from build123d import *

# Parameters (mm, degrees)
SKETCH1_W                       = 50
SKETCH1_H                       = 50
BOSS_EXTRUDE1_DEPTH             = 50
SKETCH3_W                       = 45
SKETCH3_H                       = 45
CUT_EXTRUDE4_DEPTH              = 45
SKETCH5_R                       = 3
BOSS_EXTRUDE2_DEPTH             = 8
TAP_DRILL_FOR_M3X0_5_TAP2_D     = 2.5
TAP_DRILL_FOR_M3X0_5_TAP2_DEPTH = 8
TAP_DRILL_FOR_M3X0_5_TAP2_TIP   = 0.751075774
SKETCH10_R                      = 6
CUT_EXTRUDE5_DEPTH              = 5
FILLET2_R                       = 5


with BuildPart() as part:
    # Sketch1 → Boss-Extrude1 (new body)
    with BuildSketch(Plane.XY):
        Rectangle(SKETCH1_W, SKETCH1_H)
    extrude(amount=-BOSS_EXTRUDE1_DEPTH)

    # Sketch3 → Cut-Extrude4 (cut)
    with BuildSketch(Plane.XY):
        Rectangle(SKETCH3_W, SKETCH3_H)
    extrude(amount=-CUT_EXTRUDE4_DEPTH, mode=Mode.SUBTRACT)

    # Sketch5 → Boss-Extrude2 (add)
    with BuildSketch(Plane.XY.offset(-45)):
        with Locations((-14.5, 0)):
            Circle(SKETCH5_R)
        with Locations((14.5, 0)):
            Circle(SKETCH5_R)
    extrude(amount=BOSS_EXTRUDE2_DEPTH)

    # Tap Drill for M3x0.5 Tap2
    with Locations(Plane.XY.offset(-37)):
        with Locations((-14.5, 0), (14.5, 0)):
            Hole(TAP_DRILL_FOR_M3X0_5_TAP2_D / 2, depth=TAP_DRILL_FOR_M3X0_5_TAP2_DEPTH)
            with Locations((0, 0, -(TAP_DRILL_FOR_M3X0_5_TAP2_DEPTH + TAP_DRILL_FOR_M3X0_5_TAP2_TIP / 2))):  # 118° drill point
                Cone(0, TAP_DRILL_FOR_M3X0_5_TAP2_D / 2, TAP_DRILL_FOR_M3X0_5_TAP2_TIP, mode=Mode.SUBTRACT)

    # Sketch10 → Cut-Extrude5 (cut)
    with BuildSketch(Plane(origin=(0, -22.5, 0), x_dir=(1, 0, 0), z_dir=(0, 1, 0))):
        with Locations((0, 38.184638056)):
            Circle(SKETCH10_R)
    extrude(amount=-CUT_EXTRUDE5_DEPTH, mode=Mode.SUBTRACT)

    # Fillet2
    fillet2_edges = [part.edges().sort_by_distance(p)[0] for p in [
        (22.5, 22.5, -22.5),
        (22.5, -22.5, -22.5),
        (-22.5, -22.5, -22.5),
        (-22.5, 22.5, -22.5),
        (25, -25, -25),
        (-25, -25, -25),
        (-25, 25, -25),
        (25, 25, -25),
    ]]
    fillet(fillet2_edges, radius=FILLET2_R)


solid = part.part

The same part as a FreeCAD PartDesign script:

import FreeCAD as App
import Part
import Sketcher
from FreeCAD import Vector


def edges_at(feature, points):
    """Names of the edges that pass closest to the given points."""
    edges = feature.Shape.Edges
    near = lambda p: min(range(len(edges)), key=lambda i: edges[i].distToShape(Part.Vertex(*p))[0])
    return sorted({f"Edge{near(p) + 1}" for p in points})


def add_polygon(sketch, points):
    """Adds a closed chain of lines whose ends are joined by coincident constraints."""
    first, n = sketch.GeometryCount, len(points)
    for a, b in zip(points, points[1:] + points[:1]):
        sketch.addGeometry(Part.LineSegment(App.Vector(*a, 0), App.Vector(*b, 0)), False)
    for i in range(n):
        sketch.addConstraint(Sketcher.Constraint("Coincident", first + i, 2, first + (i + 1) % n, 1))

doc = App.newDocument("Part")
body = doc.addObject("PartDesign::Body", "Body")

# Sketch on XY plane
sketch1 = body.newObject("Sketcher::SketchObject", "Sketch")
sketch1.AttachmentSupport = (doc.getObject("XY_Plane"), [""])
sketch1.MapMode = "FlatFace"
add_polygon(sketch1, [(-25, 25), (-25, -25), (25, -25), (25, 25)])  # lines 0-3
sketch1.addConstraint(Sketcher.Constraint("Vertical", 0))
sketch1.addConstraint(Sketcher.Constraint("Horizontal", 1))
sketch1.addConstraint(Sketcher.Constraint("Vertical", 2))
sketch1.addConstraint(Sketcher.Constraint("Horizontal", 3))
sketch1.addConstraint(Sketcher.Constraint("Symmetric", 0, 2, 2, 2, -1, 1))
sketch1.addConstraint(Sketcher.Constraint("Equal", 3, 0))
sketch1.addConstraint(Sketcher.Constraint("DistanceX", 1, 1, 1, 2, 50.0))
pad1 = body.newObject("PartDesign::Pad", "Pad")
pad1.Profile = sketch1
pad1.Length = 50
pad1.Reversed = True

# Sketch on XY plane
sketch2 = body.newObject("Sketcher::SketchObject", "Sketch001")
sketch2.AttachmentSupport = (doc.getObject("XY_Plane"), [""])
sketch2.MapMode = "FlatFace"
add_polygon(sketch2, [(-22, 22), (-22, -22), (22, -22), (22, 22)])  # lines 0-3
sketch2.addConstraint(Sketcher.Constraint("Vertical", 0))
sketch2.addConstraint(Sketcher.Constraint("Horizontal", 1))
sketch2.addConstraint(Sketcher.Constraint("Vertical", 2))
sketch2.addConstraint(Sketcher.Constraint("Horizontal", 3))
sketch2.addConstraint(Sketcher.Constraint("Symmetric", 0, 2, 2, 2, -1, 1))
sketch2.addConstraint(Sketcher.Constraint("Equal", 3, 0))
sketch2.addConstraint(Sketcher.Constraint("DistanceX", 1, 1, 1, 2, 45.0))
pocket1 = body.newObject("PartDesign::Pocket", "Pocket")
pocket1.Profile = sketch2
pocket1.Length = 45

# Sketch on XY plane
sketch3 = body.newObject("Sketcher::SketchObject", "Sketch002")
sketch3.AttachmentSupport = (doc.getObject("XY_Plane"), [""])
sketch3.MapMode = "FlatFace"
sketch3.AttachmentOffset = App.Placement(Vector(0, 0, -45), App.Rotation())
sketch3.addGeometry(Part.Circle(Vector(-14.5, 0, 0), Vector(0, 0, 1), 3), False)
sketch3.addGeometry(Part.Circle(Vector(14.5, 0, 0), Vector(0, 0, 1), 3), False)
sketch3.addConstraint(Sketcher.Constraint("Equal", 0, 1))
sketch3.addConstraint(Sketcher.Constraint("Symmetric", 0, 3, 1, 3, -1, 1))
sketch3.addConstraint(Sketcher.Constraint("PointOnObject", 0, 3, -1))
sketch3.addConstraint(Sketcher.Constraint("Diameter", 0, 6.0))
sketch3.addConstraint(Sketcher.Constraint("DistanceX", 0, 3, 1, 3, 29.0))
pad2 = body.newObject("PartDesign::Pad", "Pad001")
pad2.Profile = sketch3
pad2.Length = 8

# Sketch on XY plane
sketch4 = body.newObject("Sketcher::SketchObject", "Sketch003")
sketch4.AttachmentSupport = (doc.getObject("XY_Plane"), [""])
sketch4.MapMode = "FlatFace"
sketch4.AttachmentOffset = App.Placement(Vector(0, 0, -37), App.Rotation())
sketch4.addGeometry(Part.Circle(Vector(-14.5, 0, 0), Vector(0, 0, 1), 1.2), False)
sketch4.addGeometry(Part.Circle(Vector(14.5, 0, 0), Vector(0, 0, 1), 1.2), False)
sketch4.addConstraint(Sketcher.Constraint("Equal", 0, 1))
sketch4.addConstraint(Sketcher.Constraint("Symmetric", 0, 3, 1, 3, -1, 1))
sketch4.addConstraint(Sketcher.Constraint("PointOnObject", 0, 3, -1))
sketch4.addConstraint(Sketcher.Constraint("Diameter", 0, 2.5))
sketch4.addConstraint(Sketcher.Constraint("DistanceX", 0, 3, 1, 3, 29.0))
doc.recompute()
hole = body.newObject("PartDesign::Hole", "Hole")
hole.Profile = sketch4
hole.ThreadType = "None"
hole.Diameter = 2.5
hole.DepthType = "Dimension"
hole.Depth = 8
hole.DrillPoint = "Angled"
hole.DrillPointAngle = 118

# Sketch on XZ plane
sketch5 = body.newObject("Sketcher::SketchObject", "Sketch004")
sketch5.AttachmentSupport = (doc.getObject("XZ_Plane"), [""])
sketch5.MapMode = "FlatFace"
sketch5.AttachmentOffset = App.Placement(Vector(0, 0, 22.5), App.Rotation())
sketch5.addGeometry(Part.Circle(Vector(0, -38, 0), Vector(0, 0, 1), 6), False)
sketch5.addConstraint(Sketcher.Constraint("PointOnObject", 0, 3, -2))
sketch5.addConstraint(Sketcher.Constraint("Diameter", 0, 12.0))
sketch5.addConstraint(Sketcher.Constraint("DistanceY", 0, 3, -1, 1, 38.184638))
pocket2 = body.newObject("PartDesign::Pocket", "Pocket001")
pocket2.Profile = sketch5
pocket2.Length = 5
pocket2.Reversed = True
doc.recompute()

fillet = body.newObject("PartDesign::Fillet", "Fillet")
fillet.Base = (pocket2, edges_at(pocket2, [
    (22.5, 22.5, -22.5),
    (22.5, -22.5, -22.5),
    (-22.5, -22.5, -22.5),
    (-22.5, 22.5, -22.5),
    (25, -25, -25),
    (-25, -25, -25),
    (-25, 25, -25),
    (25, 25, -25),
]))
fillet.Radius = 5

doc.recompute()
